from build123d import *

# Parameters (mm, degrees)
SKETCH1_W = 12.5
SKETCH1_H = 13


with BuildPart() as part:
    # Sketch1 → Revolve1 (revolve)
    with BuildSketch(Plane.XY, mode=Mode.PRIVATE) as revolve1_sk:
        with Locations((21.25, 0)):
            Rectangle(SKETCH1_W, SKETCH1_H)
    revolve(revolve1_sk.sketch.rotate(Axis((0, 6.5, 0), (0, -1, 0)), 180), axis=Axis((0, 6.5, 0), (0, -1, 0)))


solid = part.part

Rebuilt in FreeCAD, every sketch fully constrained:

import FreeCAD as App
import Part
import Sketcher
Q = App.Units.Quantity

doc = App.newDocument("Part")
body = doc.addObject("PartDesign::Body", "Body")

# Sketch on XY plane
sketch1 = body.newObject("Sketcher::SketchObject", "Sketch")
sketch1.AttachmentSupport = (doc.getObject("XY_Plane"), [""])
sketch1.MapMode = "FlatFace"
sketch1.addGeometry(Part.LineSegment(App.Vector(15, 6.5, 0), App.Vector(15, -6.5, 0)), False)
sketch1.addGeometry(Part.LineSegment(App.Vector(15, -6.5, 0), App.Vector(27.5, -6.5, 0)), False)
sketch1.addGeometry(Part.LineSegment(App.Vector(27.5, -6.5, 0), App.Vector(27.5, 6.5, 0)), False)
sketch1.addGeometry(Part.LineSegment(App.Vector(27.5, 6.5, 0), App.Vector(15, 6.5, 0)), False)
sketch1.addConstraint(Sketcher.Constraint("Coincident", 0, 2, 1, 1))
sketch1.addConstraint(Sketcher.Constraint("Coincident", 1, 2, 2, 1))
sketch1.addConstraint(Sketcher.Constraint("Coincident", 2, 2, 3, 1))
sketch1.addConstraint(Sketcher.Constraint("Coincident", 3, 2, 0, 1))
sketch1.addConstraint(Sketcher.Constraint("Vertical", 0))
sketch1.addConstraint(Sketcher.Constraint("Horizontal", 1))
sketch1.addConstraint(Sketcher.Constraint("Vertical", 2))
sketch1.addConstraint(Sketcher.Constraint("Horizontal", 3))
sketch1.addConstraint(Sketcher.Constraint("DistanceY", 0, 2, 0, 1, Q("13 mm")))
sketch1.addConstraint(Sketcher.Constraint("DistanceX", 1, 1, 1, 2, Q("12.5 mm")))
sketch1.addConstraint(Sketcher.Constraint("DistanceX", -1, 1, 0, 2, Q("15 mm")))
sketch1.addConstraint(Sketcher.Constraint("DistanceY", 0, 2, -1, 1, Q("6.5 mm")))
revolution = body.newObject("PartDesign::Revolution", "Revolution")
revolution.Profile = sketch1
revolution.ReferenceAxis = (sketch1, ["V_Axis"])
revolution.Angle = 360

doc.recompute()
